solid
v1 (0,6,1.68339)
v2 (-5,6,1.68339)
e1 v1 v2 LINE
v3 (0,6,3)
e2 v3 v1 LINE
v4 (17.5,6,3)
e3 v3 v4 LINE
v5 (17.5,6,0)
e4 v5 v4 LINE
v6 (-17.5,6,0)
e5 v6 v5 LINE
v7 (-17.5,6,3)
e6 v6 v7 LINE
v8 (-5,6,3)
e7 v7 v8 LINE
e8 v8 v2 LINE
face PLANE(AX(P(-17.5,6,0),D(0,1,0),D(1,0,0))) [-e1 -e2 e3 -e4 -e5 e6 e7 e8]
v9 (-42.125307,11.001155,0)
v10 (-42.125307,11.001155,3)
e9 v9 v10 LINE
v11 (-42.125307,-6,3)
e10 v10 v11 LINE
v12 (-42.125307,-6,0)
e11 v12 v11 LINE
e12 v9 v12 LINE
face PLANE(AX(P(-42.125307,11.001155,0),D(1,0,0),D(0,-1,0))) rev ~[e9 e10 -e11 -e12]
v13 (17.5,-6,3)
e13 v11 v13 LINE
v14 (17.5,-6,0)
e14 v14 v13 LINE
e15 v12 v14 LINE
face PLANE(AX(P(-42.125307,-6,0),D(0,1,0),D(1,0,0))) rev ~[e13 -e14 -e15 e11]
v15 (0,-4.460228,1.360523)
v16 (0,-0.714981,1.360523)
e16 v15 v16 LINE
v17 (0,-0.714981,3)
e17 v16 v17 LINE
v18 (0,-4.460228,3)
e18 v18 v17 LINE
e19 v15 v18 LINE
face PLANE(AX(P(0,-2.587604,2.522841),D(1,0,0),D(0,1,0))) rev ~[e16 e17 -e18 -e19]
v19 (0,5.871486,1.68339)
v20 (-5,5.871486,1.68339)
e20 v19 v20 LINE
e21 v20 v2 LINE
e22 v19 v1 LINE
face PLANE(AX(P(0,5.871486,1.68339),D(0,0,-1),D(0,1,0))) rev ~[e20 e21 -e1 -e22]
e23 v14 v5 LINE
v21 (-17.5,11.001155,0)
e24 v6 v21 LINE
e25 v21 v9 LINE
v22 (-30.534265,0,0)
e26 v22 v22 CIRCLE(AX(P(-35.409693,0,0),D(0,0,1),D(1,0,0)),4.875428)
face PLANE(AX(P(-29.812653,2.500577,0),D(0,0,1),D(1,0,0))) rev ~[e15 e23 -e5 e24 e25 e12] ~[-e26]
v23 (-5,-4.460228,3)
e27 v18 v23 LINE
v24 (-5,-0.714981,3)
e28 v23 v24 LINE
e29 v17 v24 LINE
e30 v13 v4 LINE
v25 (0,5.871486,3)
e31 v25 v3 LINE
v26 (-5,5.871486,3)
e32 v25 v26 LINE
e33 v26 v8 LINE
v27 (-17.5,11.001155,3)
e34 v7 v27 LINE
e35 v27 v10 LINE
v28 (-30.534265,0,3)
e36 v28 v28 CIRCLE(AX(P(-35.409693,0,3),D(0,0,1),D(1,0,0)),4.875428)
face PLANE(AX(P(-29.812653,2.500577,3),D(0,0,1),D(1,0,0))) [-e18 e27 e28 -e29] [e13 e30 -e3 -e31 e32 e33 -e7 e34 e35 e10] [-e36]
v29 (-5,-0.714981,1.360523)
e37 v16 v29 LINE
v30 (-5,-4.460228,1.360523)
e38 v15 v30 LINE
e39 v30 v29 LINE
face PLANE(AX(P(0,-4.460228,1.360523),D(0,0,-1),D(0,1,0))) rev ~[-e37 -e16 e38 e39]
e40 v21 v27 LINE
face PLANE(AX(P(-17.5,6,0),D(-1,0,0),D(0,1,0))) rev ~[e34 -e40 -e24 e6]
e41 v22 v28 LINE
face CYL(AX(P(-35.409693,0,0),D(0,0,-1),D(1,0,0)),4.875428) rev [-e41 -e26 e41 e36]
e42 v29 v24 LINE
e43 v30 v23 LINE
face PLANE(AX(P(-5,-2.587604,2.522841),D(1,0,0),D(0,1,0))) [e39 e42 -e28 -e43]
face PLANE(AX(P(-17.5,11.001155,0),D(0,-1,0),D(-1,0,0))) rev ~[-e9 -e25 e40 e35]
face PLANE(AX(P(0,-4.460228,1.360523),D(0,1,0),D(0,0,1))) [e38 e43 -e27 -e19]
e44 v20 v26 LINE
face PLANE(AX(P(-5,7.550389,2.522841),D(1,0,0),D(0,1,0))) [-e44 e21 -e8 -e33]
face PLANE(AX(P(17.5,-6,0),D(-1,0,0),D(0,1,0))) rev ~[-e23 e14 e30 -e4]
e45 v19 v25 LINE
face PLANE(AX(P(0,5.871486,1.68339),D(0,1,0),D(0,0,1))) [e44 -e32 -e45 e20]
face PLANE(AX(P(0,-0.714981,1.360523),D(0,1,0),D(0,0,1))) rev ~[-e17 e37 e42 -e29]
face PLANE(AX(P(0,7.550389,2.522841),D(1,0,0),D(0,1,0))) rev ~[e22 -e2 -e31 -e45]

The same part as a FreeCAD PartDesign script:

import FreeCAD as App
import Part
import Sketcher

V = App.Vector

doc = App.newDocument("Part")
body = doc.addObject("PartDesign::Body", "Body")

# Sketch on XY plane
sketch1 = doc.addObject("Sketcher::SketchObject", "Sketch")
body.addObject(sketch1)
sketch1.AttachmentSupport = (doc.XY_Plane, [""])
sketch1.MapMode = "FlatFace"
sketch1.addGeometry([
    Part.LineSegment(V(-42.1, -6, 0), V(17.5, -6, 0)),  # 0
    Part.LineSegment(V(17.5, -6, 0), V(17.5, 6, 0)),  # 1
    Part.LineSegment(V(17.5, 6, 0), V(-17.5, 6, 0)),  # 2
    Part.LineSegment(V(-17.5, 6, 0), V(-17.5, 11, 0)),  # 3
    Part.LineSegment(V(-17.5, 11, 0), V(-42.1, 11, 0)),  # 4
    Part.LineSegment(V(-42.1, 11, 0), V(-42.1, -6, 0)),  # 5
    Part.Circle(V(-35.4, 0, 0), V(0, 0, 1), 4.9),  # 6
], False)
sketch1.addConstraint([
    Sketcher.Constraint("Coincident", 0, 2, 1, 1),
    Sketcher.Constraint("Coincident", 1, 2, 2, 1),
    Sketcher.Constraint("Coincident", 2, 2, 3, 1),
    Sketcher.Constraint("Coincident", 3, 2, 4, 1),
    Sketcher.Constraint("Coincident", 4, 2, 5, 1),
    Sketcher.Constraint("Coincident", 5, 2, 0, 1),
    Sketcher.Constraint("Horizontal", 0),
    Sketcher.Constraint("Vertical", 1),
    Sketcher.Constraint("Horizontal", 2),
    Sketcher.Constraint("Vertical", 3),
    Sketcher.Constraint("Horizontal", 4),
    Sketcher.Constraint("Vertical", 5),
    Sketcher.Constraint("Symmetric", 0, 2, 2, 2, -1, 1),
    Sketcher.Constraint("PointOnObject", 6, 3, -1),
    Sketcher.Constraint("DistanceX", 2, 2, 2, 1, 35.0),
    Sketcher.Constraint("DistanceY", 1, 1, 1, 2, 12.0),
    Sketcher.Constraint("Diameter", 6, 9.750856),
    Sketcher.Constraint("DistanceX", 0, 1, 0, 2, 59.625307),
    Sketcher.Constraint("DistanceY", 3, 1, 3, 2, 5.001155),
    Sketcher.Constraint("DistanceX", 6, 3, -1, 1, 35.409693),
])
pad1 = doc.addObject("PartDesign::Pad", "Pad")
body.addObject(pad1)
pad1.Profile = sketch1
pad1.Length = 3

# Sketch on YZ plane
sketch2 = doc.addObject("Sketcher::SketchObject", "Sketch001")
body.addObject(sketch2)
sketch2.AttachmentSupport = (doc.YZ_Plane, [""])
sketch2.MapMode = "FlatFace"
sketch2.addGeometry([
    Part.LineSegment(V(5.9, 3.4, 0), V(5.9, 1.7, 0)),  # 0
    Part.LineSegment(V(5.9, 1.7, 0), V(9.2, 1.7, 0)),  # 1
    Part.LineSegment(V(9.2, 1.7, 0), V(9.2, 3.4, 0)),  # 2
    Part.LineSegment(V(9.2, 3.4, 0), V(5.9, 3.4, 0)),  # 3
    Part.LineSegment(V(-4.5, 3.7, 0), V(-4.5, 1.4, 0)),  # 4
    Part.LineSegment(V(-4.5, 1.4, 0), V(-0.7, 1.4, 0)),  # 5
    Part.LineSegment(V(-0.7, 1.4, 0), V(-0.7, 3.7, 0)),  # 6
    Part.LineSegment(V(-0.7, 3.7, 0), V(-4.5, 3.7, 0)),  # 7
], False)
sketch2.addConstraint([
    Sketcher.Constraint("Coincident", 0, 2, 1, 1),
    Sketcher.Constraint("Coincident", 1, 2, 2, 1),
    Sketcher.Constraint("Coincident", 2, 2, 3, 1),
    Sketcher.Constraint("Coincident", 3, 2, 0, 1),
    Sketcher.Constraint("Coincident", 4, 2, 5, 1),
    Sketcher.Constraint("Coincident", 5, 2, 6, 1),
    Sketcher.Constraint("Coincident", 6, 2, 7, 1),
    Sketcher.Constraint("Coincident", 7, 2, 4, 1),
    Sketcher.Constraint("Vertical", 0),
    Sketcher.Constraint("Horizontal", 1),
    Sketcher.Constraint("Vertical", 2),
    Sketcher.Constraint("Horizontal", 3),
    Sketcher.Constraint("Vertical", 4),
    Sketcher.Constraint("Horizontal", 5),
    Sketcher.Constraint("Vertical", 6),
    Sketcher.Constraint("Horizontal", 7),
    Sketcher.Constraint("DistanceX", 1, 1, 1, 2, 3.357807),
    Sketcher.Constraint("DistanceX", 5, 1, 5, 2, 3.745247),
    Sketcher.Constraint("DistanceY", 0, 2, 0, 1, 1.678903),
    Sketcher.Constraint("DistanceY", 4, 2, 4, 1, 2.324635),
    Sketcher.Constraint("DistanceY", -1, 1, 0, 2, 1.68339),
    Sketcher.Constraint("DistanceX", 5, 2, -1, 1, 0.714981),
    Sketcher.Constraint("DistanceY", -1, 1, 6, 2, 3.685159),
    Sketcher.Constraint("DistanceX", 4, 2, 1, 2, 13.68952),
])
pocket1 = doc.addObject("PartDesign::Pocket", "Pocket")
body.addObject(pocket1)
pocket1.Profile = sketch2
pocket1.Length = 5

doc.recompute()
